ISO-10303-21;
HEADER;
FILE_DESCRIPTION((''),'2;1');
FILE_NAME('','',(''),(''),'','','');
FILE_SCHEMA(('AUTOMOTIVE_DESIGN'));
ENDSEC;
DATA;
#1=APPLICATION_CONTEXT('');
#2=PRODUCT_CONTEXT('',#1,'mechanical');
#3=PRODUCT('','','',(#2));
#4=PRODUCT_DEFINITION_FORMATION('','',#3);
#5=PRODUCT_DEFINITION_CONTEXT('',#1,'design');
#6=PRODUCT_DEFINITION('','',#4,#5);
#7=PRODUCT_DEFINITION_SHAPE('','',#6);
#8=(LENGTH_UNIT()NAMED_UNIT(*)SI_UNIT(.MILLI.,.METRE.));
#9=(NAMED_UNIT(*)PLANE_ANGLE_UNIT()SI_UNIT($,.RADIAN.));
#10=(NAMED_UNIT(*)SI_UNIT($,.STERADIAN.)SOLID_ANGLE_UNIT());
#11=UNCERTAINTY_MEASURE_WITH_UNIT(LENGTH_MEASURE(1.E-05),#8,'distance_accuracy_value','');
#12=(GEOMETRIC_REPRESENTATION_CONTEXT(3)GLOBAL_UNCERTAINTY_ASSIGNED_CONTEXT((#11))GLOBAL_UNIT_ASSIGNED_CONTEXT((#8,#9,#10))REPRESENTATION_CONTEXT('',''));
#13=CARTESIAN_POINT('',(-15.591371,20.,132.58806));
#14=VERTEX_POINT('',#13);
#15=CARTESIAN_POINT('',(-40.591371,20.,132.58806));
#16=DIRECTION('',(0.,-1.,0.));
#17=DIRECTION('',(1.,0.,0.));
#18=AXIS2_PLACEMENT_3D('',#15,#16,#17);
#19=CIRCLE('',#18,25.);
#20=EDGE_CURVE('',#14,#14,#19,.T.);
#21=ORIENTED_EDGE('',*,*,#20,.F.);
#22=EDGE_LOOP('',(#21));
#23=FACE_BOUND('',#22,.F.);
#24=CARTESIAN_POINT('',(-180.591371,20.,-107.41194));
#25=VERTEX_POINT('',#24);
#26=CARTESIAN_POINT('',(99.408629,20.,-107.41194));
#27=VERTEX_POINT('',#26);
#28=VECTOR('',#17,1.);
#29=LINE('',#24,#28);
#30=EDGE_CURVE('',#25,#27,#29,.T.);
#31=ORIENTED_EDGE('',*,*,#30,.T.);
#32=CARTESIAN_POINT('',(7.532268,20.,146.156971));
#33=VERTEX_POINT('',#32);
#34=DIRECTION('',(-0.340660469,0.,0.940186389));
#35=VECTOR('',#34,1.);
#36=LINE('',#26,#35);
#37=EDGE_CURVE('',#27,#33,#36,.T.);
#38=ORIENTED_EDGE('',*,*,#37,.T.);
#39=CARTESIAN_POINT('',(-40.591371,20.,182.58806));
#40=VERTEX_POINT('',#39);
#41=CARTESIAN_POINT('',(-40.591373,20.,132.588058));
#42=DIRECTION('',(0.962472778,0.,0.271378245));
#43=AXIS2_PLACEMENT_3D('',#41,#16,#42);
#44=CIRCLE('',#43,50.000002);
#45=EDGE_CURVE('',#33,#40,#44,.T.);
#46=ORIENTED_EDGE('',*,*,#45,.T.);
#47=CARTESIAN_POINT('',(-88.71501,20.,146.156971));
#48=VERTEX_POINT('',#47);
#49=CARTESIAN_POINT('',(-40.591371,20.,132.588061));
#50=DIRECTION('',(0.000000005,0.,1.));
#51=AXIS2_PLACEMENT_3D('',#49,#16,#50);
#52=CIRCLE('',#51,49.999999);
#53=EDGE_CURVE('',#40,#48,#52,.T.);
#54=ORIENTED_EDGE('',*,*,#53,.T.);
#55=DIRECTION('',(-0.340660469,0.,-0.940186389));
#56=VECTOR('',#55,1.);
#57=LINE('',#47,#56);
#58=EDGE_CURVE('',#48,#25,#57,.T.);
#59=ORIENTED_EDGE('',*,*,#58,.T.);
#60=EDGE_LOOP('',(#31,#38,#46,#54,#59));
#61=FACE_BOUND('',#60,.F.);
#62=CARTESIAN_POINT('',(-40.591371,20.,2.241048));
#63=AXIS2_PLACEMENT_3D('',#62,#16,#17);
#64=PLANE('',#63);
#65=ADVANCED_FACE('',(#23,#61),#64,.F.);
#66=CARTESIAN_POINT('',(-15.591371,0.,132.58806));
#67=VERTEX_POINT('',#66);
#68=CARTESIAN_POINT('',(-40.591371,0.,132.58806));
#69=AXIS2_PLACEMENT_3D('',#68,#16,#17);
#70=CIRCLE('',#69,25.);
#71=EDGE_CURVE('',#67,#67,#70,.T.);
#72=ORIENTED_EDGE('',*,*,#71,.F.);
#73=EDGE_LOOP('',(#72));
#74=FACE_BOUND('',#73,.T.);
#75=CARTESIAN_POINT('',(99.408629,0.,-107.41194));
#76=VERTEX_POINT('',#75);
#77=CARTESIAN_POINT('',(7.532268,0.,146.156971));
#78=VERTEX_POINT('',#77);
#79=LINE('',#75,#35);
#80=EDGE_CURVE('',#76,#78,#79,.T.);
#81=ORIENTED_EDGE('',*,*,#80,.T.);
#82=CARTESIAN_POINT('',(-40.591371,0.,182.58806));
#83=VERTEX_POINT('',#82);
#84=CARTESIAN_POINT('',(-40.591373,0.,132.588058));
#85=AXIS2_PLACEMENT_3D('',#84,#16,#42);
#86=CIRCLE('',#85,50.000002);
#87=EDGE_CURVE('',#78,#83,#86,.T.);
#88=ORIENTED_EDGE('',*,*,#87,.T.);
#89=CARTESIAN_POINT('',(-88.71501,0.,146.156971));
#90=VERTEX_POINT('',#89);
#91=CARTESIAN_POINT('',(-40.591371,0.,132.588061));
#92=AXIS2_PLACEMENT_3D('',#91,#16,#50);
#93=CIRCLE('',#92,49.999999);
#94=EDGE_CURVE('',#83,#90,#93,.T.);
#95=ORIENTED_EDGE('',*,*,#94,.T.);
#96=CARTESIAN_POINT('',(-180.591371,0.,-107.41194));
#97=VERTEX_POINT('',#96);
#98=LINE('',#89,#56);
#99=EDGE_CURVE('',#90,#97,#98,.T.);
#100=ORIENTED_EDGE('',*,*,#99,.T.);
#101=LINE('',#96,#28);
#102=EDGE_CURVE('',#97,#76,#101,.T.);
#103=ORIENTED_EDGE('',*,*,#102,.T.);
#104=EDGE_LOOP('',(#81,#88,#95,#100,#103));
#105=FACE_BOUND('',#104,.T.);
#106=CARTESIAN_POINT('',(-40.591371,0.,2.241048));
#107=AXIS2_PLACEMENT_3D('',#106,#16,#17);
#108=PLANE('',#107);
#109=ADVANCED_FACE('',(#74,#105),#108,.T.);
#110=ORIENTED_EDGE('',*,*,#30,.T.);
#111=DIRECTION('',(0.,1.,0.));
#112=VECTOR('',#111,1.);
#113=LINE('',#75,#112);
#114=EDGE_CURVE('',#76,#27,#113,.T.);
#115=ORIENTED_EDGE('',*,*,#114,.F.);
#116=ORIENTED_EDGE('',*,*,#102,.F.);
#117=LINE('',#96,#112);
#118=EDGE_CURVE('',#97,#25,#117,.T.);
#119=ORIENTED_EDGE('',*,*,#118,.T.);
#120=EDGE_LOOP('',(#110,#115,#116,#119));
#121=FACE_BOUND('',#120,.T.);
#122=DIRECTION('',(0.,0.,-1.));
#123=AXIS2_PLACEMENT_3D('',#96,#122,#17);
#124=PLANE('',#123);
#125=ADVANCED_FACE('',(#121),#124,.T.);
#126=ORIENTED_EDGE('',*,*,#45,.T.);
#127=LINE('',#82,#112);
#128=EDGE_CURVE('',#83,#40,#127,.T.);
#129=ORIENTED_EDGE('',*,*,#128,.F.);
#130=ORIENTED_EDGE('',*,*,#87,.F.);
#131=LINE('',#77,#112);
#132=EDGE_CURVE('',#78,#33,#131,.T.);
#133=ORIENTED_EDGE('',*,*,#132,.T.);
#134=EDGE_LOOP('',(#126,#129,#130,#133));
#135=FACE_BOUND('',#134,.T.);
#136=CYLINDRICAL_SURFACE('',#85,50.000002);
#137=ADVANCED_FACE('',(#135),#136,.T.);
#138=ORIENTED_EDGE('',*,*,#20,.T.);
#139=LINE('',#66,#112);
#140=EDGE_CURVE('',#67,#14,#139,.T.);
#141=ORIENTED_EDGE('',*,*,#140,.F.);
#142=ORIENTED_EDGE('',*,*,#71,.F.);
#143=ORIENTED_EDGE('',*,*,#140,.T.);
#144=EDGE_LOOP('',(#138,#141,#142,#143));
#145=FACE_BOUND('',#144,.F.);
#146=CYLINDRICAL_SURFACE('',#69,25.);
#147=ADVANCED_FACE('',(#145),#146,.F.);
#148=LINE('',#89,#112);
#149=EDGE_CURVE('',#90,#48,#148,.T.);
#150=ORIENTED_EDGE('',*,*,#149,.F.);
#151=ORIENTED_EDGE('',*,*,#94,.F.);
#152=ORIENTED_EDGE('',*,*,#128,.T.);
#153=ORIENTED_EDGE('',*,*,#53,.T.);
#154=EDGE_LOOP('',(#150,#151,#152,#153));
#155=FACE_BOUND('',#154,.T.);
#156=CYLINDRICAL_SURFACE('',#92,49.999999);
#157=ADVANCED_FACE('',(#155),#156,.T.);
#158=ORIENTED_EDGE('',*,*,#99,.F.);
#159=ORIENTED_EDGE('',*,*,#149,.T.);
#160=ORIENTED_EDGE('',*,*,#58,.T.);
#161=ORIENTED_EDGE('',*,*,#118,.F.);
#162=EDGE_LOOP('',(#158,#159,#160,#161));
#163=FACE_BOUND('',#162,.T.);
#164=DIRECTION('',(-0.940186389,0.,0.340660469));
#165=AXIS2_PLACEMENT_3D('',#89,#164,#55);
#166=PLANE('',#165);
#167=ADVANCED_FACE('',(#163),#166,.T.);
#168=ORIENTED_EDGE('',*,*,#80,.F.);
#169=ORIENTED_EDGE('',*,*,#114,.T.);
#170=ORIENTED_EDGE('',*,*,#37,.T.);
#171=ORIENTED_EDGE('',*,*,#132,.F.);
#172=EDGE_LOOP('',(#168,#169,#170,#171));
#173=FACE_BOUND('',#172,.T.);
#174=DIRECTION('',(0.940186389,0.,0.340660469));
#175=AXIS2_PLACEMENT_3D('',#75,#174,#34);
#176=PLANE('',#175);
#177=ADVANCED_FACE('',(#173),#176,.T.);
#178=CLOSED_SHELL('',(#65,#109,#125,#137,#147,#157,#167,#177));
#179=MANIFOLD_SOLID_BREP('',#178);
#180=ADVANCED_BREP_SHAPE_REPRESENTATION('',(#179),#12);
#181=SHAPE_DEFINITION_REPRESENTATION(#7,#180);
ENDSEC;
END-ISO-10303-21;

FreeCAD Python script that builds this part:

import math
import FreeCAD as App
import Part
import Sketcher

V = App.Vector
Q = App.Units.Quantity

doc = App.newDocument("Part")
body = doc.addObject("PartDesign::Body", "Body")

# Sketch on XZ plane
sketch1 = doc.addObject("Sketcher::SketchObject", "Sketch")
body.addObject(sketch1)
sketch1.AttachmentSupport = (doc.XZ_Plane, [""])
sketch1.MapMode = "FlatFace"
sketch1.addGeometry([
    Part.LineSegment(V(-88.71501, 146.156971, 0), V(-180.591371, -107.41194, 0)),  # 0
    Part.LineSegment(V(-180.591371, -107.41194, 0), V(99.408629, -107.41194, 0)),  # 1
    Part.LineSegment(V(99.408629, -107.41194, 0), V(7.532268, 146.156971, 0)),  # 2
    Part.ArcOfCircle(Part.Circle(V(-40.591373, 132.588058, 0), V(0, 0, 1), 50.000002), math.radians(15.746297), math.radians(89.999998)),  # 3
    Part.ArcOfCircle(Part.Circle(V(-40.591371, 132.588061, 0), V(0, 0, 1), 49.999999), math.radians(90), math.radians(164.253705)),  # 4
    Part.Circle(V(-40.591371, 132.58806, 0), V(0, 0, 1), 25),  # 5
], False)
sketch1.addConstraint([
    Sketcher.Constraint("Coincident", 0, 2, 1, 1),
    Sketcher.Constraint("Coincident", 1, 2, 2, 1),
    Sketcher.Constraint("Coincident", 2, 2, 3, 1),
    Sketcher.Constraint("Tangent", 3, 2, 4, 1),
    Sketcher.Constraint("Coincident", 4, 2, 0, 1),
    Sketcher.Constraint("Horizontal", 1),
    Sketcher.Constraint("Coincident", 5, 3, 3, 3),
    Sketcher.Constraint("Horizontal", 2, 2, 4, 2),
    Sketcher.Constraint("Vertical", 5, 3, 3, 2),
    Sketcher.Constraint("Equal", 0, 2),
    Sketcher.Constraint("Diameter", 5, Q("50 mm")),
    Sketcher.Constraint("Radius", 3, Q("50.000002 mm")),
    Sketcher.Constraint("Radius", 4, Q("49.999999 mm")),
    Sketcher.Constraint("DistanceX", 1, 1, 1, 2, Q("280 mm")),
    Sketcher.Constraint("DistanceY", 0, 2, 3, 3, Q("239.999998 mm")),
    Sketcher.Constraint("DistanceY", -1, 1, 3, 3, Q("132.588058 mm")),
    Sketcher.Constraint("DistanceX", 4, 3, -1, 1, Q("40.591371 mm")),
    Sketcher.Constraint("DistanceX", -1, 1, 2, 2, Q("7.532268 mm")),
])
pad1 = doc.addObject("PartDesign::Pad", "Pad")
body.addObject(pad1)
pad1.Profile = sketch1
pad1.Length = 20
pad1.Reversed = True

doc.recompute()
